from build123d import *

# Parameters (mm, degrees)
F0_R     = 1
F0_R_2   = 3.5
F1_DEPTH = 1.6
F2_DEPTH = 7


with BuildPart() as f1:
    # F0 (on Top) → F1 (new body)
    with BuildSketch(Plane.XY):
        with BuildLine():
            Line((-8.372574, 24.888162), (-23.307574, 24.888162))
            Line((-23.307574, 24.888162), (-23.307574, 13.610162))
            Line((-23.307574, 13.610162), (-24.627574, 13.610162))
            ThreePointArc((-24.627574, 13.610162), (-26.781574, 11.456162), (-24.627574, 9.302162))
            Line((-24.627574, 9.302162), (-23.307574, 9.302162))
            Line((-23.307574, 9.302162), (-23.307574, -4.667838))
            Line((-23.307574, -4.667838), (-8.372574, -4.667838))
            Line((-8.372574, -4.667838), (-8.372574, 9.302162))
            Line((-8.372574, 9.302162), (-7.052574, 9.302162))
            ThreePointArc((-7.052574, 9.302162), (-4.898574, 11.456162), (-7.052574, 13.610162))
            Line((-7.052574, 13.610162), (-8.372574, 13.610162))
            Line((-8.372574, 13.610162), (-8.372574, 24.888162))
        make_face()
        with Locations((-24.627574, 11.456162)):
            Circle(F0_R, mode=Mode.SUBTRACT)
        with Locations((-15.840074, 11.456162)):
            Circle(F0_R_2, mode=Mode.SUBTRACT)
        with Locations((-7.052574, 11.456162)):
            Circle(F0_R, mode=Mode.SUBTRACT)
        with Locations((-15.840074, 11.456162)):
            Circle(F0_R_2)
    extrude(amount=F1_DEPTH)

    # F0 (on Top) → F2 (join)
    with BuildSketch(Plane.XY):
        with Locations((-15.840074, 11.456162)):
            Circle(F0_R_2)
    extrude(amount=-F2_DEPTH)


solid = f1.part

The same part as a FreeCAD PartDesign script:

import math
import FreeCAD as App
import Part
import Sketcher

V = App.Vector

doc = App.newDocument("Part")
body = doc.addObject("PartDesign::Body", "Body")

sketch1 = body.newObject("Sketcher::SketchObject", "Sketch")
sketch1.AttachmentSupport = (doc.getObject("XY_Plane"), [""])
sketch1.MapMode = "FlatFace"
sketch1.addGeometry([
    Part.LineSegment(V(-8.4, 24.9, 0), V(-23.3, 24.9, 0)),
    Part.LineSegment(V(-23.3, 24.9, 0), V(-23.3, 13.6, 0)),
    Part.LineSegment(V(-23.3, 13.6, 0), V(-24.6, 13.6, 0)),
    Part.ArcOfCircle(Part.Circle(V(-24.6, 11.5, 0), V(0, 0, 1), 2.2), math.radians(90), math.radians(270)),
    Part.LineSegment(V(-24.6, 9.3, 0), V(-23.3, 9.3, 0)),
    Part.LineSegment(V(-23.3, 9.3, 0), V(-23.3, -4.7, 0)),
    Part.LineSegment(V(-23.3, -4.7, 0), V(-8.4, -4.7, 0)),
    Part.LineSegment(V(-8.4, -4.7, 0), V(-8.4, 9.3, 0)),
    Part.LineSegment(V(-8.4, 9.3, 0), V(-7.1, 9.3, 0)),
    Part.ArcOfCircle(Part.Circle(V(-7.1, 11.5, 0), V(0, 0, 1), 2.2), math.radians(-90), math.radians(90)),
    Part.LineSegment(V(-7.1, 13.6, 0), V(-8.4, 13.6, 0)),
    Part.LineSegment(V(-8.4, 13.6, 0), V(-8.4, 24.9, 0)),
    Part.Circle(V(-24.6, 11.5, 0), V(0, 0, 1), 1),
    Part.Circle(V(-7.1, 11.5, 0), V(0, 0, 1), 1),
], False)
sketch1.addConstraint([
    Sketcher.Constraint("Coincident", 0, 2, 1, 1),
    Sketcher.Constraint("Coincident", 1, 2, 2, 1),
    Sketcher.Constraint("Tangent", 2, 2, 3, 1),
    Sketcher.Constraint("Tangent", 3, 2, 4, 1),
    Sketcher.Constraint("Coincident", 4, 2, 5, 1),
    Sketcher.Constraint("Coincident", 5, 2, 6, 1),
    Sketcher.Constraint("Coincident", 6, 2, 7, 1),
    Sketcher.Constraint("Coincident", 7, 2, 8, 1),
    Sketcher.Constraint("Tangent", 8, 2, 9, 1),
    Sketcher.Constraint("Tangent", 9, 2, 10, 1),
    Sketcher.Constraint("Coincident", 10, 2, 11, 1),
    Sketcher.Constraint("Coincident", 11, 2, 0, 1),
    Sketcher.Constraint("Horizontal", 0),
    Sketcher.Constraint("Vertical", 1),
    Sketcher.Constraint("Horizontal", 2),
    Sketcher.Constraint("Horizontal", 4),
    Sketcher.Constraint("Vertical", 5),
    Sketcher.Constraint("Horizontal", 6),
    Sketcher.Constraint("Vertical", 7),
    Sketcher.Constraint("Horizontal", 8),
    Sketcher.Constraint("Horizontal", 10),
    Sketcher.Constraint("Vertical", 11),
    Sketcher.Constraint("Coincident", 12, 3, 3, 3),
    Sketcher.Constraint("Coincident", 13, 3, 9, 3),
    Sketcher.Constraint("Equal", 3, 9),
    Sketcher.Constraint("Equal", 12, 13),
    Sketcher.Constraint("Horizontal", 3, 3, 9, 3),
    Sketcher.Constraint("Vertical", 1, 2, 4, 2),
    Sketcher.Constraint("Vertical", 7, 2, 10, 2),
    Sketcher.Constraint("Equal", 4, 8),
    Sketcher.Constraint("Diameter", 12, 2.0),
    Sketcher.Constraint("Radius", 3, 2.154),
    Sketcher.Constraint("DistanceX", 2, 2, 2, 1, 1.32),
    Sketcher.Constraint("DistanceY", 5, 2, 5, 1, 13.97),
    Sketcher.Constraint("DistanceX", 0, 2, 0, 1, 14.935),
    Sketcher.Constraint("DistanceY", 1, 2, 1, 1, 11.278),
    Sketcher.Constraint("DistanceY", -1, 1, 4, 2, 9.302162),
    Sketcher.Constraint("DistanceX", 3, 3, -1, 1, 24.627574),
])
pad1 = body.newObject("PartDesign::Pad", "Pad")
pad1.Profile = sketch1
pad1.Length = 1.6

sketch2 = body.newObject("Sketcher::SketchObject", "Sketch001")
sketch2.AttachmentSupport = (doc.getObject("XY_Plane"), [""])
sketch2.MapMode = "FlatFace"
sketch2.addGeometry(Part.Circle(V(-15.8, 11.5, 0), V(0, 0, 1), 3.5), False)
sketch2.addConstraint([
    Sketcher.Constraint("Diameter", 0, 7.0),
    Sketcher.Constraint("DistanceX", 0, 3, -1, 1, 15.840074),
    Sketcher.Constraint("DistanceY", -1, 1, 0, 3, 11.456162),
])
pad2 = body.newObject("PartDesign::Pad", "Pad001")
pad2.Profile = sketch2
pad2.Length = 7
pad2.Reversed = True

doc.recompute()
